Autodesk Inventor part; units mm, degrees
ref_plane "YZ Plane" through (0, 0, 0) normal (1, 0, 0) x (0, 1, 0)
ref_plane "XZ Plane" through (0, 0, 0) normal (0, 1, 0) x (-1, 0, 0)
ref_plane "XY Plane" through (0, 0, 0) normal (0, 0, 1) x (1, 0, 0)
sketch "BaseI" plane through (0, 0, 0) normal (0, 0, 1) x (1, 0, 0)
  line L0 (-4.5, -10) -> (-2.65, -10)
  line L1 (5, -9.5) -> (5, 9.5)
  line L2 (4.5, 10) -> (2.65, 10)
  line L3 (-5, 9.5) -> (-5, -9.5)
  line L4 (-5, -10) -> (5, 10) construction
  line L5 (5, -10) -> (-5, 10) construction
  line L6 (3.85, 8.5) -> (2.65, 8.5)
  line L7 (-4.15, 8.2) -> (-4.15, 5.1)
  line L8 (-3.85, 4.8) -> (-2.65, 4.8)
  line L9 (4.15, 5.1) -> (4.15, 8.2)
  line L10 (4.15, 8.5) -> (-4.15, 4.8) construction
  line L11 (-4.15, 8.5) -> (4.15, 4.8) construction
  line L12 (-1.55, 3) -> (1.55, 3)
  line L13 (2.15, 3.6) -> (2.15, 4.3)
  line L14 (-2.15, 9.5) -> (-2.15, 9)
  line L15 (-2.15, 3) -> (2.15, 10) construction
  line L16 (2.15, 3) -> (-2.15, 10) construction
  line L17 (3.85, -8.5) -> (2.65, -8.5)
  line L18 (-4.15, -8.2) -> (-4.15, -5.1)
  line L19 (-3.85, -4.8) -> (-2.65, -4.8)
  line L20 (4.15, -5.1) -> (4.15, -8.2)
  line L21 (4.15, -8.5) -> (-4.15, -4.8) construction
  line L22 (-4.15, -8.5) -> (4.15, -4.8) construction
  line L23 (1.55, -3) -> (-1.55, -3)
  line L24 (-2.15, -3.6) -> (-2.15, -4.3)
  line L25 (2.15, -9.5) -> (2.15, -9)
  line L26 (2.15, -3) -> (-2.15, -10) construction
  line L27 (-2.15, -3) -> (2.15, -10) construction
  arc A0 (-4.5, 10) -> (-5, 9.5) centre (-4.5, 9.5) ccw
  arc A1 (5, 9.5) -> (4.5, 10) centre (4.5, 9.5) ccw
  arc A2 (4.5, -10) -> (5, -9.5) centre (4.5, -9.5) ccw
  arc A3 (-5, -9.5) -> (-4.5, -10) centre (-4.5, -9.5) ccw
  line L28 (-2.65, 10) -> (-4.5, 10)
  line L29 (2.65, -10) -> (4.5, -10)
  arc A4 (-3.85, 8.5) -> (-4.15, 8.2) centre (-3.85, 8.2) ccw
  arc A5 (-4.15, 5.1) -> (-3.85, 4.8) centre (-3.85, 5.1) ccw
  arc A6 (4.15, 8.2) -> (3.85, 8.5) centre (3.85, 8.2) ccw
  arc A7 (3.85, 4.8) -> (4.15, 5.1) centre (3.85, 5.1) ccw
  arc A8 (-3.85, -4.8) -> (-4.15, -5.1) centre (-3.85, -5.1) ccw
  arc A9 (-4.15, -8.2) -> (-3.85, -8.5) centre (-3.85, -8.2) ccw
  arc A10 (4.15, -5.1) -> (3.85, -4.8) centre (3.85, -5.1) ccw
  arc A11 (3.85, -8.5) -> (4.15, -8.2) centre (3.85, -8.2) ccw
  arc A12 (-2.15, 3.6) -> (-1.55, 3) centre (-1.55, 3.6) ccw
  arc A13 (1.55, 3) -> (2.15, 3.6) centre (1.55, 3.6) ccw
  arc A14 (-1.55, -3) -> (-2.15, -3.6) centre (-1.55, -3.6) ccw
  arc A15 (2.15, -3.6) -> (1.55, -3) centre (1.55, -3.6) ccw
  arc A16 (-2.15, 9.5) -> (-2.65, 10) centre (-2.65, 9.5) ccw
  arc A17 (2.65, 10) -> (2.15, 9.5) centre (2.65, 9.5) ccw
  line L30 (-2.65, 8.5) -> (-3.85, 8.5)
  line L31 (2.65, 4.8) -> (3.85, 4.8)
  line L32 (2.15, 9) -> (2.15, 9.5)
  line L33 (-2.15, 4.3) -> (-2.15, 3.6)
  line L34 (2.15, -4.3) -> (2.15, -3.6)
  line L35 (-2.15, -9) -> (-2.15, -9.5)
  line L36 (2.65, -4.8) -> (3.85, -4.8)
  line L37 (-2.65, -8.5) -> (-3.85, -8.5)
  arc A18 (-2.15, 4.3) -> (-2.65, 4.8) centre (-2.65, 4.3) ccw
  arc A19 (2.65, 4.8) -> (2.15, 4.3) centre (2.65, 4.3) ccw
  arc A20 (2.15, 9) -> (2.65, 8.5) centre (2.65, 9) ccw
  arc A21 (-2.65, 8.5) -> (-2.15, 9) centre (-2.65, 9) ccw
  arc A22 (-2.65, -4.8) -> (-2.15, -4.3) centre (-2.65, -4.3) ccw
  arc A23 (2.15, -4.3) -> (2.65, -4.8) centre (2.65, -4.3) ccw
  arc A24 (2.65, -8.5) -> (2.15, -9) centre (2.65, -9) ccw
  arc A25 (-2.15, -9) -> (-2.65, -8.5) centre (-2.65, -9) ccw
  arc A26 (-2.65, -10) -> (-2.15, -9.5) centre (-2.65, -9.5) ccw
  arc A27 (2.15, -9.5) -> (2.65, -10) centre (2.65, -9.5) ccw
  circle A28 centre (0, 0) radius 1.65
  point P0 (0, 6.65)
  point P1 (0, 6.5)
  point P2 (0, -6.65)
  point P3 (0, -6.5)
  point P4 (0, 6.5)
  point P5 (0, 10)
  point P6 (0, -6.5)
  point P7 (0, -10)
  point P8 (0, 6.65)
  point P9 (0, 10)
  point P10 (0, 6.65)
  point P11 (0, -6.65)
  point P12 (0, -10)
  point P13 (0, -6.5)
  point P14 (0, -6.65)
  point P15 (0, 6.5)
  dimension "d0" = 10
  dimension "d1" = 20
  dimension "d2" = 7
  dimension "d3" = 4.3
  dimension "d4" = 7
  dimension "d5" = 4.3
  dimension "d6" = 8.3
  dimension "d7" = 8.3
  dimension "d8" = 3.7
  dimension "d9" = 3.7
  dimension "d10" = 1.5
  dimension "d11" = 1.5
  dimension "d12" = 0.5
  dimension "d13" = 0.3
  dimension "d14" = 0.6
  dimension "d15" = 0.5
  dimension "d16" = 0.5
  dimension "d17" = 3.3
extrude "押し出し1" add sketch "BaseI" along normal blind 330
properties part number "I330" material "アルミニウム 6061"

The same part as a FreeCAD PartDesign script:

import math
import FreeCAD as App
import Part
import Sketcher

doc = App.newDocument("Part")
body = doc.addObject("PartDesign::Body", "Body")

sketch1 = body.newObject("Sketcher::SketchObject", "Sketch")
sketch1.AttachmentSupport = (doc.getObject("XY_Plane"), [""])
sketch1.MapMode = "FlatFace"
sketch1.addGeometry(Part.ArcOfCircle(Part.Circle(App.Vector(-4.5, -9.5, 0), App.Vector(0, 0, 1), 0.5), math.radians(180), math.radians(270)), False)
sketch1.addGeometry(Part.LineSegment(App.Vector(-4.5, -10, 0), App.Vector(-2.65, -10, 0)), False)
sketch1.addGeometry(Part.ArcOfCircle(Part.Circle(App.Vector(-2.65, -9.5, 0), App.Vector(0, 0, 1), 0.5), math.radians(-90), math.radians(0)), False)
sketch1.addGeometry(Part.LineSegment(App.Vector(-2.15, -9.5, 0), App.Vector(-2.15, -9, 0)), False)
sketch1.addGeometry(Part.ArcOfCircle(Part.Circle(App.Vector(-2.65, -9, 0), App.Vector(0, 0, 1), 0.5), math.radians(0), math.radians(90)), False)
sketch1.addGeometry(Part.LineSegment(App.Vector(-2.65, -8.5, 0), App.Vector(-3.85, -8.5, 0)), False)
sketch1.addGeometry(Part.ArcOfCircle(Part.Circle(App.Vector(-3.85, -8.2, 0), App.Vector(0, 0, 1), 0.3), math.radians(180), math.radians(270)), False)
sketch1.addGeometry(Part.LineSegment(App.Vector(-4.15, -8.2, 0), App.Vector(-4.15, -5.1, 0)), False)
sketch1.addGeometry(Part.ArcOfCircle(Part.Circle(App.Vector(-3.85, -5.1, 0), App.Vector(0, 0, 1), 0.3), math.radians(90), math.radians(180)), False)
sketch1.addGeometry(Part.LineSegment(App.Vector(-3.85, -4.8, 0), App.Vector(-2.65, -4.8, 0)), False)
sketch1.addGeometry(Part.ArcOfCircle(Part.Circle(App.Vector(-2.65, -4.3, 0), App.Vector(0, 0, 1), 0.5), math.radians(-90), math.radians(0)), False)
sketch1.addGeometry(Part.LineSegment(App.Vector(-2.15, -4.3, 0), App.Vector(-2.15, -3.6, 0)), False)
sketch1.addGeometry(Part.ArcOfCircle(Part.Circle(App.Vector(-1.55, -3.6, 0), App.Vector(0, 0, 1), 0.6), math.radians(90), math.radians(180)), False)
sketch1.addGeometry(Part.LineSegment(App.Vector(-1.55, -3, 0), App.Vector(1.55, -3, 0)), False)
sketch1.addGeometry(Part.ArcOfCircle(Part.Circle(App.Vector(1.55, -3.6, 0), App.Vector(0, 0, 1), 0.6), math.radians(0), math.radians(90)), False)
sketch1.addGeometry(Part.LineSegment(App.Vector(2.15, -3.6, 0), App.Vector(2.15, -4.3, 0)), False)
sketch1.addGeometry(Part.ArcOfCircle(Part.Circle(App.Vector(2.65, -4.3, 0), App.Vector(0, 0, 1), 0.5), math.radians(180), math.radians(270)), False)
sketch1.addGeometry(Part.LineSegment(App.Vector(2.65, -4.8, 0), App.Vector(3.85, -4.8, 0)), False)
sketch1.addGeometry(Part.ArcOfCircle(Part.Circle(App.Vector(3.85, -5.1, 0), App.Vector(0, 0, 1), 0.3), math.radians(0), math.radians(90)), False)
sketch1.addGeometry(Part.LineSegment(App.Vector(4.15, -5.1, 0), App.Vector(4.15, -8.2, 0)), False)
sketch1.addGeometry(Part.ArcOfCircle(Part.Circle(App.Vector(3.85, -8.2, 0), App.Vector(0, 0, 1), 0.3), math.radians(-90), math.radians(0)), False)
sketch1.addGeometry(Part.LineSegment(App.Vector(3.85, -8.5, 0), App.Vector(2.65, -8.5, 0)), False)
sketch1.addGeometry(Part.ArcOfCircle(Part.Circle(App.Vector(2.65, -9, 0), App.Vector(0, 0, 1), 0.5), math.radians(90), math.radians(180)), False)
sketch1.addGeometry(Part.LineSegment(App.Vector(2.15, -9, 0), App.Vector(2.15, -9.5, 0)), False)
sketch1.addGeometry(Part.ArcOfCircle(Part.Circle(App.Vector(2.65, -9.5, 0), App.Vector(0, 0, 1), 0.5), math.radians(180), math.radians(270)), False)
sketch1.addGeometry(Part.LineSegment(App.Vector(2.65, -10, 0), App.Vector(4.5, -10, 0)), False)
sketch1.addGeometry(Part.ArcOfCircle(Part.Circle(App.Vector(4.5, -9.5, 0), App.Vector(0, 0, 1), 0.5), math.radians(-90), math.radians(0)), False)
sketch1.addGeometry(Part.LineSegment(App.Vector(5, -9.5, 0), App.Vector(5, 9.5, 0)), False)
sketch1.addGeometry(Part.ArcOfCircle(Part.Circle(App.Vector(4.5, 9.5, 0), App.Vector(0, 0, 1), 0.5), math.radians(0), math.radians(90)), False)
sketch1.addGeometry(Part.LineSegment(App.Vector(4.5, 10, 0), App.Vector(2.65, 10, 0)), False)
sketch1.addGeometry(Part.ArcOfCircle(Part.Circle(App.Vector(2.65, 9.5, 0), App.Vector(0, 0, 1), 0.5), math.radians(90), math.radians(180)), False)
sketch1.addGeometry(Part.LineSegment(App.Vector(2.15, 9.5, 0), App.Vector(2.15, 9, 0)), False)
sketch1.addGeometry(Part.ArcOfCircle(Part.Circle(App.Vector(2.65, 9, 0), App.Vector(0, 0, 1), 0.5), math.radians(180), math.radians(270)), False)
sketch1.addGeometry(Part.LineSegment(App.Vector(2.65, 8.5, 0), App.Vector(3.85, 8.5, 0)), False)
sketch1.addGeometry(Part.ArcOfCircle(Part.Circle(App.Vector(3.85, 8.2, 0), App.Vector(0, 0, 1), 0.3), math.radians(0), math.radians(90)), False)
sketch1.addGeometry(Part.LineSegment(App.Vector(4.15, 8.2, 0), App.Vector(4.15, 5.1, 0)), False)
sketch1.addGeometry(Part.ArcOfCircle(Part.Circle(App.Vector(3.85, 5.1, 0), App.Vector(0, 0, 1), 0.3), math.radians(-90), math.radians(0)), False)
sketch1.addGeometry(Part.LineSegment(App.Vector(3.85, 4.8, 0), App.Vector(2.65, 4.8, 0)), False)
sketch1.addGeometry(Part.ArcOfCircle(Part.Circle(App.Vector(2.65, 4.3, 0), App.Vector(0, 0, 1), 0.5), math.radians(90), math.radians(180)), False)
sketch1.addGeometry(Part.LineSegment(App.Vector(2.15, 4.3, 0), App.Vector(2.15, 3.6, 0)), False)
sketch1.addGeometry(Part.ArcOfCircle(Part.Circle(App.Vector(1.55, 3.6, 0), App.Vector(0, 0, 1), 0.6), math.radians(-90), math.radians(0)), False)
sketch1.addGeometry(Part.LineSegment(App.Vector(1.55, 3, 0), App.Vector(-1.55, 3, 0)), False)
sketch1.addGeometry(Part.ArcOfCircle(Part.Circle(App.Vector(-1.55, 3.6, 0), App.Vector(0, 0, 1), 0.6), math.radians(180), math.radians(270)), False)
sketch1.addGeometry(Part.LineSegment(App.Vector(-2.15, 3.6, 0), App.Vector(-2.15, 4.3, 0)), False)
sketch1.addGeometry(Part.ArcOfCircle(Part.Circle(App.Vector(-2.65, 4.3, 0), App.Vector(0, 0, 1), 0.5), math.radians(0), math.radians(90)), False)
sketch1.addGeometry(Part.LineSegment(App.Vector(-2.65, 4.8, 0), App.Vector(-3.85, 4.8, 0)), False)
sketch1.addGeometry(Part.ArcOfCircle(Part.Circle(App.Vector(-3.85, 5.1, 0), App.Vector(0, 0, 1), 0.3), math.radians(180), math.radians(270)), False)
sketch1.addGeometry(Part.LineSegment(App.Vector(-4.15, 5.1, 0), App.Vector(-4.15, 8.2, 0)), False)
sketch1.addGeometry(Part.ArcOfCircle(Part.Circle(App.Vector(-3.85, 8.2, 0), App.Vector(0, 0, 1), 0.3), math.radians(90), math.radians(180)), False)
sketch1.addGeometry(Part.LineSegment(App.Vector(-3.85, 8.5, 0), App.Vector(-2.65, 8.5, 0)), False)
sketch1.addGeometry(Part.ArcOfCircle(Part.Circle(App.Vector(-2.65, 9, 0), App.Vector(0, 0, 1), 0.5), math.radians(-90), math.radians(0)), False)
sketch1.addGeometry(Part.LineSegment(App.Vector(-2.15, 9, 0), App.Vector(-2.15, 9.5, 0)), False)
sketch1.addGeometry(Part.ArcOfCircle(Part.Circle(App.Vector(-2.65, 9.5, 0), App.Vector(0, 0, 1), 0.5), math.radians(0), math.radians(90)), False)
sketch1.addGeometry(Part.LineSegment(App.Vector(-2.65, 10, 0), App.Vector(-4.5, 10, 0)), False)
sketch1.addGeometry(Part.ArcOfCircle(Part.Circle(App.Vector(-4.5, 9.5, 0), App.Vector(0, 0, 1), 0.5), math.radians(90), math.radians(180)), False)
sketch1.addGeometry(Part.LineSegment(App.Vector(-5, 9.5, 0), App.Vector(-5, -9.5, 0)), False)
sketch1.addGeometry(Part.Circle(App.Vector(0, 0, 0), App.Vector(0, 0, 1), 1.65), False)
sketch1.addConstraint(Sketcher.Constraint("Tangent", 0, 2, 1, 1))
sketch1.addConstraint(Sketcher.Constraint("Tangent", 1, 2, 2, 1))
sketch1.addConstraint(Sketcher.Constraint("Tangent", 2, 2, 3, 1))
sketch1.addConstraint(Sketcher.Constraint("Tangent", 3, 2, 4, 1))
sketch1.addConstraint(Sketcher.Constraint("Tangent", 4, 2, 5, 1))
sketch1.addConstraint(Sketcher.Constraint("Tangent", 5, 2, 6, 2))
sketch1.addConstraint(Sketcher.Constraint("Tangent", 6, 1, 7, 1))
sketch1.addConstraint(Sketcher.Constraint("Tangent", 7, 2, 8, 2))
sketch1.addConstraint(Sketcher.Constraint("Tangent", 8, 1, 9, 1))
sketch1.addConstraint(Sketcher.Constraint("Tangent", 9, 2, 10, 1))
sketch1.addConstraint(Sketcher.Constraint("Tangent", 10, 2, 11, 1))
sketch1.addConstraint(Sketcher.Constraint("Tangent", 11, 2, 12, 2))
sketch1.addConstraint(Sketcher.Constraint("Tangent", 12, 1, 13, 1))
sketch1.addConstraint(Sketcher.Constraint("Tangent", 13, 2, 14, 2))
sketch1.addConstraint(Sketcher.Constraint("Tangent", 14, 1, 15, 1))
sketch1.addConstraint(Sketcher.Constraint("Tangent", 15, 2, 16, 1))
sketch1.addConstraint(Sketcher.Constraint("Tangent", 16, 2, 17, 1))
sketch1.addConstraint(Sketcher.Constraint("Tangent", 17, 2, 18, 2))
sketch1.addConstraint(Sketcher.Constraint("Tangent", 18, 1, 19, 1))
sketch1.addConstraint(Sketcher.Constraint("Tangent", 19, 2, 20, 2))
sketch1.addConstraint(Sketcher.Constraint("Tangent", 20, 1, 21, 1))
sketch1.addConstraint(Sketcher.Constraint("Tangent", 21, 2, 22, 1))
sketch1.addConstraint(Sketcher.Constraint("Tangent", 22, 2, 23, 1))
sketch1.addConstraint(Sketcher.Constraint("Tangent", 23, 2, 24, 1))
sketch1.addConstraint(Sketcher.Constraint("Tangent", 24, 2, 25, 1))
sketch1.addConstraint(Sketcher.Constraint("Tangent", 25, 2, 26, 1))
sketch1.addConstraint(Sketcher.Constraint("Tangent", 26, 2, 27, 1))
sketch1.addConstraint(Sketcher.Constraint("Tangent", 27, 2, 28, 1))
sketch1.addConstraint(Sketcher.Constraint("Tangent", 28, 2, 29, 1))
sketch1.addConstraint(Sketcher.Constraint("Tangent", 29, 2, 30, 1))
sketch1.addConstraint(Sketcher.Constraint("Tangent", 30, 2, 31, 1))
sketch1.addConstraint(Sketcher.Constraint("Tangent", 31, 2, 32, 1))
sketch1.addConstraint(Sketcher.Constraint("Tangent", 32, 2, 33, 1))
sketch1.addConstraint(Sketcher.Constraint("Tangent", 33, 2, 34, 2))
sketch1.addConstraint(Sketcher.Constraint("Tangent", 34, 1, 35, 1))
sketch1.addConstraint(Sketcher.Constraint("Tangent", 35, 2, 36, 2))
sketch1.addConstraint(Sketcher.Constraint("Tangent", 36, 1, 37, 1))
sketch1.addConstraint(Sketcher.Constraint("Tangent", 37, 2, 38, 1))
sketch1.addConstraint(Sketcher.Constraint("Tangent", 38, 2, 39, 1))
sketch1.addConstraint(Sketcher.Constraint("Tangent", 39, 2, 40, 2))
sketch1.addConstraint(Sketcher.Constraint("Tangent", 40, 1, 41, 1))
sketch1.addConstraint(Sketcher.Constraint("Tangent", 41, 2, 42, 2))
sketch1.addConstraint(Sketcher.Constraint("Tangent", 42, 1, 43, 1))
sketch1.addConstraint(Sketcher.Constraint("Tangent", 43, 2, 44, 1))
sketch1.addConstraint(Sketcher.Constraint("Tangent", 44, 2, 45, 1))
sketch1.addConstraint(Sketcher.Constraint("Tangent", 45, 2, 46, 2))
sketch1.addConstraint(Sketcher.Constraint("Tangent", 46, 1, 47, 1))
sketch1.addConstraint(Sketcher.Constraint("Tangent", 47, 2, 48, 2))
sketch1.addConstraint(Sketcher.Constraint("Tangent", 48, 1, 49, 1))
sketch1.addConstraint(Sketcher.Constraint("Tangent", 49, 2, 50, 1))
sketch1.addConstraint(Sketcher.Constraint("Tangent", 50, 2, 51, 1))
sketch1.addConstraint(Sketcher.Constraint("Tangent", 51, 2, 52, 1))
sketch1.addConstraint(Sketcher.Constraint("Tangent", 52, 2, 53, 1))
sketch1.addConstraint(Sketcher.Constraint("Tangent", 53, 2, 54, 1))
sketch1.addConstraint(Sketcher.Constraint("Tangent", 54, 2, 55, 1))
sketch1.addConstraint(Sketcher.Constraint("Tangent", 55, 2, 0, 1))
sketch1.addConstraint(Sketcher.Constraint("Horizontal", 1))
sketch1.addConstraint(Sketcher.Constraint("Vertical", 3))
sketch1.addConstraint(Sketcher.Constraint("Horizontal", 5))
sketch1.addConstraint(Sketcher.Constraint("Vertical", 7))
sketch1.addConstraint(Sketcher.Constraint("Horizontal", 9))
sketch1.addConstraint(Sketcher.Constraint("Vertical", 11))
sketch1.addConstraint(Sketcher.Constraint("Horizontal", 13))
sketch1.addConstraint(Sketcher.Constraint("Vertical", 15))
sketch1.addConstraint(Sketcher.Constraint("Horizontal", 17))
sketch1.addConstraint(Sketcher.Constraint("Vertical", 19))
sketch1.addConstraint(Sketcher.Constraint("Horizontal", 21))
sketch1.addConstraint(Sketcher.Constraint("Vertical", 23))
sketch1.addConstraint(Sketcher.Constraint("Horizontal", 25))
sketch1.addConstraint(Sketcher.Constraint("Vertical", 27))
sketch1.addConstraint(Sketcher.Constraint("Horizontal", 29))
sketch1.addConstraint(Sketcher.Constraint("Vertical", 31))
sketch1.addConstraint(Sketcher.Constraint("Horizontal", 33))
sketch1.addConstraint(Sketcher.Constraint("Vertical", 35))
sketch1.addConstraint(Sketcher.Constraint("Horizontal", 37))
sketch1.addConstraint(Sketcher.Constraint("Vertical", 39))
sketch1.addConstraint(Sketcher.Constraint("Horizontal", 41))
sketch1.addConstraint(Sketcher.Constraint("Vertical", 43))
sketch1.addConstraint(Sketcher.Constraint("Horizontal", 45))
sketch1.addConstraint(Sketcher.Constraint("Vertical", 47))
sketch1.addConstraint(Sketcher.Constraint("Horizontal", 49))
sketch1.addConstraint(Sketcher.Constraint("Vertical", 51))
sketch1.addConstraint(Sketcher.Constraint("Horizontal", 53))
sketch1.addConstraint(Sketcher.Constraint("Vertical", 55))
sketch1.addConstraint(Sketcher.Constraint("Coincident", 56, 3, -1, 1))
sketch1.addConstraint(Sketcher.Constraint("Equal", 0, 2))
sketch1.addConstraint(Sketcher.Constraint("Equal", 2, 4))
sketch1.addConstraint(Sketcher.Constraint("Equal", 6, 8))
sketch1.addConstraint(Sketcher.Constraint("Equal", 4, 10))
sketch1.addConstraint(Sketcher.Constraint("Equal", 12, 14))
sketch1.addConstraint(Sketcher.Constraint("Equal", 10, 16))
sketch1.addConstraint(Sketcher.Constraint("Equal", 8, 18))
sketch1.addConstraint(Sketcher.Constraint("Equal", 18, 20))
sketch1.addConstraint(Sketcher.Constraint("Equal", 16, 22))
sketch1.addConstraint(Sketcher.Constraint("Equal", 22, 24))
sketch1.addConstraint(Sketcher.Constraint("Equal", 24, 26))
sketch1.addConstraint(Sketcher.Constraint("Equal", 26, 28))
sketch1.addConstraint(Sketcher.Constraint("Equal", 28, 30))
sketch1.addConstraint(Sketcher.Constraint("Equal", 30, 32))
sketch1.addConstraint(Sketcher.Constraint("Equal", 20, 34))
sketch1.addConstraint(Sketcher.Constraint("Equal", 34, 36))
sketch1.addConstraint(Sketcher.Constraint("Equal", 32, 38))
sketch1.addConstraint(Sketcher.Constraint("Equal", 14, 40))
sketch1.addConstraint(Sketcher.Constraint("Equal", 40, 42))
sketch1.addConstraint(Sketcher.Constraint("Equal", 38, 44))
sketch1.addConstraint(Sketcher.Constraint("Equal", 36, 46))
sketch1.addConstraint(Sketcher.Constraint("Equal", 46, 48))
sketch1.addConstraint(Sketcher.Constraint("Equal", 44, 50))
sketch1.addConstraint(Sketcher.Constraint("Equal", 50, 52))
sketch1.addConstraint(Sketcher.Constraint("Equal", 52, 54))
sketch1.addConstraint(Sketcher.Constraint("Symmetric", 0, 3, 28, 3, -1, 1))
sketch1.addConstraint(Sketcher.Constraint("Symmetric", 4, 3, 32, 3, -1, 1))
sketch1.addConstraint(Sketcher.Constraint("Symmetric", 8, 3, 36, 3, -1, 1))
sketch1.addConstraint(Sketcher.Constraint("Symmetric", 12, 3, 40, 3, -1, 1))
sketch1.addConstraint(Sketcher.Constraint("Symmetric", 16, 3, 44, 3, -1, 1))
sketch1.addConstraint(Sketcher.Constraint("Symmetric", 20, 3, 48, 3, -1, 1))
sketch1.addConstraint(Sketcher.Constraint("Symmetric", 24, 3, 52, 3, -1, 1))
sketch1.addConstraint(Sketcher.Constraint("Symmetric", 10, 3, 16, 3, -2))
sketch1.addConstraint(Sketcher.Constraint("Symmetric", 6, 3, 20, 3, -2))
sketch1.addConstraint(Sketcher.Constraint("Symmetric", 2, 3, 24, 3, -2))
sketch1.addConstraint(Sketcher.Constraint("Vertical", 4, 3, 10, 3))
sketch1.addConstraint(Sketcher.Constraint("Equal", 41, 7))
sketch1.addConstraint(Sketcher.Constraint("Diameter", 56, 3.3))
sketch1.addConstraint(Sketcher.Constraint("Radius", 0, 0.5))
sketch1.addConstraint(Sketcher.Constraint("Radius", 6, 0.3))
sketch1.addConstraint(Sketcher.Constraint("Radius", 12, 0.6))
sketch1.addConstraint(Sketcher.Constraint("DistanceY", 3, 1, 3, 2, 0.5))
sketch1.addConstraint(Sketcher.Constraint("DistanceY", 0, 2, -1, 1, 10.0))
sketch1.addConstraint(Sketcher.Constraint("DistanceY", 10, 3, -1, 1, 4.3))
sketch1.addConstraint(Sketcher.Constraint("DistanceX", 5, 2, 5, 1, 1.2))
sketch1.addConstraint(Sketcher.Constraint("DistanceY", 11, 1, 11, 2, 0.7))
sketch1.addConstraint(Sketcher.Constraint("DistanceX", -1, 1, 26, 2, 5.0))
pad1 = body.newObject("PartDesign::Pad", "Pad")
pad1.Profile = sketch1
pad1.Length = 330

doc.recompute()
